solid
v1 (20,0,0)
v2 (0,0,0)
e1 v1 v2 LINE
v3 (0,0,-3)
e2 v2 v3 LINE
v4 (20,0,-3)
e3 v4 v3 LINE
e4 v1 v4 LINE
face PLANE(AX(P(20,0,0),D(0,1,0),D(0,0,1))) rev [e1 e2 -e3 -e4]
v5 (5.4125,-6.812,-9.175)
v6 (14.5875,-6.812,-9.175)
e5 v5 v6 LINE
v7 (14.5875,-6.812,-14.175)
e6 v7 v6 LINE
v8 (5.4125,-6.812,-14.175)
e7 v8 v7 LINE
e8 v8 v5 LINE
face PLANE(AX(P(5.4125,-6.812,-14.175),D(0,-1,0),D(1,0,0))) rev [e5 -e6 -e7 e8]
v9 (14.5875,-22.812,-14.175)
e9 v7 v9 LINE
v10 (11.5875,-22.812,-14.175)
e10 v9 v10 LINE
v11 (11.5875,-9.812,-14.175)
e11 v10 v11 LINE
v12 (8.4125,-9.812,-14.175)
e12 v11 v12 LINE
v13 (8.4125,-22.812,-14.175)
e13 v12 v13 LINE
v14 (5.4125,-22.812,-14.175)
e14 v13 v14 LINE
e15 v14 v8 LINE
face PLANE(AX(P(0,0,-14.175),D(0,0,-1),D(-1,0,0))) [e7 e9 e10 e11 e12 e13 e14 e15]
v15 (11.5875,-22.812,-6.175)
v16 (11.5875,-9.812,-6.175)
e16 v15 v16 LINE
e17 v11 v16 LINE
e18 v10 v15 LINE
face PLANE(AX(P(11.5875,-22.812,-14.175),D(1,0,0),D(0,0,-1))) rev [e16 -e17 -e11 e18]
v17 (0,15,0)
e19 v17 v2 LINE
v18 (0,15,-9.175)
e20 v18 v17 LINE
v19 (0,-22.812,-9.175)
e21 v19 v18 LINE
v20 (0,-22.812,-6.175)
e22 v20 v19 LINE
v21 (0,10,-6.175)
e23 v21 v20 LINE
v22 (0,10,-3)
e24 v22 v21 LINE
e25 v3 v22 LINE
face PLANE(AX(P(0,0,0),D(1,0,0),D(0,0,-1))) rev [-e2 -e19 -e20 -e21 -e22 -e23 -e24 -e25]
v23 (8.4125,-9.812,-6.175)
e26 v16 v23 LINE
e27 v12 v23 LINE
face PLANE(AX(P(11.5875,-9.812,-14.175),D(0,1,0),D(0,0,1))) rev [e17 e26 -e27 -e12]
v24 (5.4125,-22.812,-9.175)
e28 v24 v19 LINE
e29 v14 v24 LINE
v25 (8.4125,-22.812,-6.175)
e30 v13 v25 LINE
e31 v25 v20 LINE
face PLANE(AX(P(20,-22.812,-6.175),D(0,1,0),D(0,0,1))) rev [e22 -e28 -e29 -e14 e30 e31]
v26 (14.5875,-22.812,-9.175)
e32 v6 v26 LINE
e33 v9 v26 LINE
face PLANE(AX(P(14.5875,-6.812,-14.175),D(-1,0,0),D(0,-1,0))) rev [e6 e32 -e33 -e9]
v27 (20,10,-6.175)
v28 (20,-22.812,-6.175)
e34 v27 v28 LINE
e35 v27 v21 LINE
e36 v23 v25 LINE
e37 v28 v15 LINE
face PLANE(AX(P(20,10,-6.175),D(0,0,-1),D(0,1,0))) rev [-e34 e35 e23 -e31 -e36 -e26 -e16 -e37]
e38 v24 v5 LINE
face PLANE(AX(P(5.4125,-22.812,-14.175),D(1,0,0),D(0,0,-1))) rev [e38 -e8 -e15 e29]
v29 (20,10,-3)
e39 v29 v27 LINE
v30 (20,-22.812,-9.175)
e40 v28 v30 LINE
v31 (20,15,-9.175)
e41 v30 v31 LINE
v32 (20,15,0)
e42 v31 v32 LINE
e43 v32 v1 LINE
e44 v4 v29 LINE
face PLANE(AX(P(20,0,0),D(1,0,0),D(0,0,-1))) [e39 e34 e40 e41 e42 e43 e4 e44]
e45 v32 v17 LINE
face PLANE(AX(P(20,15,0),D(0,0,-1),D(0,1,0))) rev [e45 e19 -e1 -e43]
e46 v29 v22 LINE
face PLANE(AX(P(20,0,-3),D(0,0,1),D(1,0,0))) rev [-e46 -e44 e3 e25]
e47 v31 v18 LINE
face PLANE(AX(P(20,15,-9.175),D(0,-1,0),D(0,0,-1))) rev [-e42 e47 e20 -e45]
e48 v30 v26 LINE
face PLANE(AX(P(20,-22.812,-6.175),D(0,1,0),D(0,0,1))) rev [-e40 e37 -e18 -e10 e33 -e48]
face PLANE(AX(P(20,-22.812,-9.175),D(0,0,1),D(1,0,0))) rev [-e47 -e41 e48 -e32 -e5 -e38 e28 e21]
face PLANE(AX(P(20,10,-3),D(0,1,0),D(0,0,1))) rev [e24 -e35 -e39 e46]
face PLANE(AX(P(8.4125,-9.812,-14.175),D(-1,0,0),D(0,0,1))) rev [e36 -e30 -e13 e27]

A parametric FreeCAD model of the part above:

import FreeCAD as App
import Part
import Sketcher
Q = App.Units.Quantity

doc = App.newDocument("Part")
body = doc.addObject("PartDesign::Body", "Body")

sketch1 = doc.addObject("Sketcher::SketchObject", "Sketch")
body.addObject(sketch1)
sketch1.AttachmentSupport = (doc.YZ_Plane, [""])
sketch1.MapMode = "FlatFace"
sketch1.addGeometry(Part.LineSegment(App.Vector(0, 0, 0), App.Vector(0, -3, 0)), False)
sketch1.addGeometry(Part.LineSegment(App.Vector(0, -3, 0), App.Vector(10, -3, 0)), False)
sketch1.addGeometry(Part.LineSegment(App.Vector(10, -3, 0), App.Vector(10, -6.2, 0)), False)
sketch1.addGeometry(Part.LineSegment(App.Vector(10, -6.2, 0), App.Vector(-22.8, -6.2, 0)), False)
sketch1.addGeometry(Part.LineSegment(App.Vector(-22.8, -6.2, 0), App.Vector(-22.8, -9.2, 0)), False)
sketch1.addGeometry(Part.LineSegment(App.Vector(-22.8, -9.2, 0), App.Vector(15, -9.2, 0)), False)
sketch1.addGeometry(Part.LineSegment(App.Vector(15, -9.2, 0), App.Vector(15, 0, 0)), False)
sketch1.addGeometry(Part.LineSegment(App.Vector(15, 0, 0), App.Vector(0, 0, 0)), False)
sketch1.addConstraint(Sketcher.Constraint("Coincident", 0, 2, 1, 1))
sketch1.addConstraint(Sketcher.Constraint("Coincident", 1, 2, 2, 1))
sketch1.addConstraint(Sketcher.Constraint("Coincident", 2, 2, 3, 1))
sketch1.addConstraint(Sketcher.Constraint("Coincident", 3, 2, 4, 1))
sketch1.addConstraint(Sketcher.Constraint("Coincident", 4, 2, 5, 1))
sketch1.addConstraint(Sketcher.Constraint("Coincident", 5, 2, 6, 1))
sketch1.addConstraint(Sketcher.Constraint("Coincident", 6, 2, 7, 1))
sketch1.addConstraint(Sketcher.Constraint("Coincident", 7, 2, 0, 1))
sketch1.addConstraint(Sketcher.Constraint("Vertical", 0))
sketch1.addConstraint(Sketcher.Constraint("Horizontal", 1))
sketch1.addConstraint(Sketcher.Constraint("Vertical", 2))
sketch1.addConstraint(Sketcher.Constraint("Horizontal", 3))
sketch1.addConstraint(Sketcher.Constraint("Vertical", 4))
sketch1.addConstraint(Sketcher.Constraint("Horizontal", 5))
sketch1.addConstraint(Sketcher.Constraint("Vertical", 6))
sketch1.addConstraint(Sketcher.Constraint("Horizontal", 7))
sketch1.addConstraint(Sketcher.Constraint("Coincident", 7, 2, -1, 1))
sketch1.addConstraint(Sketcher.Constraint("Equal", 0, 4))
sketch1.addConstraint(Sketcher.Constraint("DistanceX", 1, 1, 1, 2, Q("10 mm")))
sketch1.addConstraint(Sketcher.Constraint("DistanceX", 7, 2, 7, 1, Q("15 mm")))
sketch1.addConstraint(Sketcher.Constraint("DistanceY", 0, 2, 0, 1, Q("3 mm")))
sketch1.addConstraint(Sketcher.Constraint("DistanceX", 3, 2, 3, 1, Q("32.812 mm")))
sketch1.addConstraint(Sketcher.Constraint("DistanceY", 2, 2, 2, 1, Q("3.175 mm")))
pad1 = doc.addObject("PartDesign::Pad", "Pad")
body.addObject(pad1)
pad1.Profile = sketch1
pad1.Length = 20

sketch2 = doc.addObject("Sketcher::SketchObject", "Sketch001")
body.addObject(sketch2)
sketch2.AttachmentSupport = (doc.XY_Plane, [""])
sketch2.MapMode = "FlatFace"
sketch2.AttachmentOffset = App.Placement(App.Vector(0, 0, -9.175), App.Rotation())
sketch2.addGeometry(Part.LineSegment(App.Vector(11.6, -22.8, 0), App.Vector(11.6, -9.8, 0)), False)
sketch2.addGeometry(Part.LineSegment(App.Vector(11.6, -9.8, 0), App.Vector(8.4, -9.8, 0)), False)
sketch2.addGeometry(Part.LineSegment(App.Vector(8.4, -9.8, 0), App.Vector(8.4, -22.8, 0)), False)
sketch2.addGeometry(Part.LineSegment(App.Vector(8.4, -22.8, 0), App.Vector(5.4, -22.8, 0)), False)
sketch2.addGeometry(Part.LineSegment(App.Vector(5.4, -22.8, 0), App.Vector(5.4, -6.8, 0)), False)
sketch2.addGeometry(Part.LineSegment(App.Vector(5.4, -6.8, 0), App.Vector(14.6, -6.8, 0)), False)
sketch2.addGeometry(Part.LineSegment(App.Vector(14.6, -6.8, 0), App.Vector(14.6, -22.8, 0)), False)
sketch2.addGeometry(Part.LineSegment(App.Vector(14.6, -22.8, 0), App.Vector(11.6, -22.8, 0)), False)
sketch2.addConstraint(Sketcher.Constraint("Coincident", 0, 2, 1, 1))
sketch2.addConstraint(Sketcher.Constraint("Coincident", 1, 2, 2, 1))
sketch2.addConstraint(Sketcher.Constraint("Coincident", 2, 2, 3, 1))
sketch2.addConstraint(Sketcher.Constraint("Coincident", 3, 2, 4, 1))
sketch2.addConstraint(Sketcher.Constraint("Coincident", 4, 2, 5, 1))
sketch2.addConstraint(Sketcher.Constraint("Coincident", 5, 2, 6, 1))
sketch2.addConstraint(Sketcher.Constraint("Coincident", 6, 2, 7, 1))
sketch2.addConstraint(Sketcher.Constraint("Coincident", 7, 2, 0, 1))
sketch2.addConstraint(Sketcher.Constraint("Vertical", 0))
sketch2.addConstraint(Sketcher.Constraint("Horizontal", 1))
sketch2.addConstraint(Sketcher.Constraint("Vertical", 2))
sketch2.addConstraint(Sketcher.Constraint("Horizontal", 3))
sketch2.addConstraint(Sketcher.Constraint("Vertical", 4))
sketch2.addConstraint(Sketcher.Constraint("Horizontal", 5))
sketch2.addConstraint(Sketcher.Constraint("Vertical", 6))
sketch2.addConstraint(Sketcher.Constraint("Horizontal", 7))
sketch2.addConstraint(Sketcher.Constraint("Horizontal", 3, 2, 6, 2))
sketch2.addConstraint(Sketcher.Constraint("Equal", 3, 7))
sketch2.addConstraint(Sketcher.Constraint("DistanceX", 3, 2, 3, 1, Q("3 mm")))
sketch2.addConstraint(Sketcher.Constraint("DistanceY", 0, 1, 0, 2, Q("13 mm")))
sketch2.addConstraint(Sketcher.Constraint("DistanceY", 4, 1, 4, 2, Q("16 mm")))
sketch2.addConstraint(Sketcher.Constraint("DistanceX", 1, 2, 1, 1, Q("3.175 mm")))
sketch2.addConstraint(Sketcher.Constraint("DistanceY", 0, 2, -1, 1, Q("9.812 mm")))
sketch2.addConstraint(Sketcher.Constraint("DistanceX", -1, 1, 0, 2, Q("11.5875 mm")))
pad2 = doc.addObject("PartDesign::Pad", "Pad001")
body.addObject(pad2)
pad2.Profile = sketch2
pad2.Length = 5
pad2.Reversed = True

sketch3 = doc.addObject("Sketcher::SketchObject", "Sketch002")
body.addObject(sketch3)
sketch3.AttachmentSupport = (doc.XY_Plane, [""])
sketch3.MapMode = "FlatFace"
sketch3.AttachmentOffset = App.Placement(App.Vector(0, 0, -9.175), App.Rotation())
sketch3.addGeometry(Part.LineSegment(App.Vector(11.6, -9.8, 0), App.Vector(11.6, -22.8, 0)), False)
sketch3.addGeometry(Part.LineSegment(App.Vector(11.6, -22.8, 0), App.Vector(8.4, -22.8, 0)), False)
sketch3.addGeometry(Part.LineSegment(App.Vector(8.4, -22.8, 0), App.Vector(8.4, -9.8, 0)), False)
sketch3.addGeometry(Part.LineSegment(App.Vector(8.4, -9.8, 0), App.Vector(11.6, -9.8, 0)), False)
sketch3.addConstraint(Sketcher.Constraint("Coincident", 0, 2, 1, 1))
sketch3.addConstraint(Sketcher.Constraint("Coincident", 1, 2, 2, 1))
sketch3.addConstraint(Sketcher.Constraint("Coincident", 2, 2, 3, 1))
sketch3.addConstraint(Sketcher.Constraint("Coincident", 3, 2, 0, 1))
sketch3.addConstraint(Sketcher.Constraint("Vertical", 0))
sketch3.addConstraint(Sketcher.Constraint("Horizontal", 1))
sketch3.addConstraint(Sketcher.Constraint("Vertical", 2))
sketch3.addConstraint(Sketcher.Constraint("Horizontal", 3))
sketch3.addConstraint(Sketcher.Constraint("DistanceY", 0, 2, 0, 1, Q("13 mm")))
sketch3.addConstraint(Sketcher.Constraint("DistanceX", 1, 2, 1, 1, Q("3.175 mm")))
sketch3.addConstraint(Sketcher.Constraint("DistanceY", 0, 2, -1, 1, Q("22.812 mm")))
sketch3.addConstraint(Sketcher.Constraint("DistanceX", -1, 1, 0, 2, Q("11.5875 mm")))
pocket1 = doc.addObject("PartDesign::Pocket", "Pocket")
body.addObject(pocket1)
pocket1.Profile = sketch3
pocket1.Length = 3
pocket1.Reversed = True

doc.recompute()
